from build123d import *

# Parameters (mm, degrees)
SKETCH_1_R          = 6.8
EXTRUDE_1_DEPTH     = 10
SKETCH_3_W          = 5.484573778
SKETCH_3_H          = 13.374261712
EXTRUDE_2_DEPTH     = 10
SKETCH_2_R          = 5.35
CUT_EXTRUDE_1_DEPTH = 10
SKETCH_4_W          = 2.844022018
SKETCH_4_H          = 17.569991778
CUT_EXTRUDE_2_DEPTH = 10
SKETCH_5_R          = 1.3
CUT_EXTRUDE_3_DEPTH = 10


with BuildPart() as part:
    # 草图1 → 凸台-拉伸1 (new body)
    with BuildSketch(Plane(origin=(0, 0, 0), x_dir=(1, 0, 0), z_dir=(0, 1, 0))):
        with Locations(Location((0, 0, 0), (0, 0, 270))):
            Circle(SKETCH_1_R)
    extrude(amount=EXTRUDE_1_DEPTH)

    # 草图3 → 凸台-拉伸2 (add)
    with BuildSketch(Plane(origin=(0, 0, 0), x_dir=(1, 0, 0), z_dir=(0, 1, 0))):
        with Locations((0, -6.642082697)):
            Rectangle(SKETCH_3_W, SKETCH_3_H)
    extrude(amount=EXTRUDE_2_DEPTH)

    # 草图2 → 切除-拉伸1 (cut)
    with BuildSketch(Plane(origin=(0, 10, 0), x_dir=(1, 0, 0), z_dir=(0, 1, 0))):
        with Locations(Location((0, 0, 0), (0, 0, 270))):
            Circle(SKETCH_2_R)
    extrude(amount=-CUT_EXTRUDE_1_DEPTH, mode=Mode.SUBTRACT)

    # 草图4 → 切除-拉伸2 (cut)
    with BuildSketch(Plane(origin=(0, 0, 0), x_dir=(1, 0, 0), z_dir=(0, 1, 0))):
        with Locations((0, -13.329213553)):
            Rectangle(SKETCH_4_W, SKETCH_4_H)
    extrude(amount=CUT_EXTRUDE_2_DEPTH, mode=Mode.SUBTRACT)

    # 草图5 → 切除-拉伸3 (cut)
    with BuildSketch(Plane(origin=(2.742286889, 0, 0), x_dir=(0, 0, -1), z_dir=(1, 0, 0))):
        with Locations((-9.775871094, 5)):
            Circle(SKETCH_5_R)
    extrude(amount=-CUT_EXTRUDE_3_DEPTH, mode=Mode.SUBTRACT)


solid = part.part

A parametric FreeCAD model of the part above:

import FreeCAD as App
import Part
import Sketcher

doc = App.newDocument("Part")
body = doc.addObject("PartDesign::Body", "Body")

# Sketch on XZ plane
sketch1 = body.newObject("Sketcher::SketchObject", "Sketch")
sketch1.AttachmentSupport = (doc.getObject("XZ_Plane"), [""])
sketch1.MapMode = "FlatFace"
sketch1.addGeometry(Part.Circle(App.Vector(0, 0, 0), App.Vector(0, 0, 1), 7), False)
sketch1.addConstraint([
    Sketcher.Constraint("Coincident", 0, 3, -1, 1),
    Sketcher.Constraint("Diameter", 0, 13.6),
])
pad1 = body.newObject("PartDesign::Pad", "Pad")
pad1.Profile = sketch1
pad1.Length = 10
pad1.Reversed = True

# Sketch on XZ plane
sketch2 = body.newObject("Sketcher::SketchObject", "Sketch001")
sketch2.AttachmentSupport = (doc.getObject("XZ_Plane"), [""])
sketch2.MapMode = "FlatFace"
sketch2.addGeometry([
    Part.LineSegment(App.Vector(-3, 0, 0), App.Vector(-3, 13, 0)),
    Part.LineSegment(App.Vector(-3, 13, 0), App.Vector(3, 13, 0)),
    Part.LineSegment(App.Vector(3, 13, 0), App.Vector(3, 0, 0)),
    Part.LineSegment(App.Vector(3, 0, 0), App.Vector(-3, 0, 0)),
], False)
sketch2.addConstraint([
    Sketcher.Constraint("Coincident", 0, 2, 1, 1),
    Sketcher.Constraint("Coincident", 1, 2, 2, 1),
    Sketcher.Constraint("Coincident", 2, 2, 3, 1),
    Sketcher.Constraint("Coincident", 3, 2, 0, 1),
    Sketcher.Constraint("Vertical", 0),
    Sketcher.Constraint("Horizontal", 1),
    Sketcher.Constraint("Vertical", 2),
    Sketcher.Constraint("Horizontal", 3),
    Sketcher.Constraint("DistanceY", 0, 1, 0, 2, 13.374262),
    Sketcher.Constraint("DistanceX", 1, 1, 1, 2, 5.484574),
    Sketcher.Constraint("DistanceY", 2, 2, -1, 1, 0.045048),
    Sketcher.Constraint("DistanceX", 0, 2, -1, 1, 2.742287),
])
pad2 = body.newObject("PartDesign::Pad", "Pad001")
pad2.Profile = sketch2
pad2.Length = 10
pad2.Reversed = True

# Sketch on XZ plane
sketch3 = body.newObject("Sketcher::SketchObject", "Sketch002")
sketch3.AttachmentSupport = (doc.getObject("XZ_Plane"), [""])
sketch3.MapMode = "FlatFace"
sketch3.AttachmentOffset = App.Placement(App.Vector(0, 0, -10), App.Rotation())
sketch3.addGeometry(Part.Circle(App.Vector(0, 0, 0), App.Vector(0, 0, 1), 5), False)
sketch3.addConstraint([
    Sketcher.Constraint("Coincident", 0, 3, -1, 1),
    Sketcher.Constraint("Diameter", 0, 10.7),
])
pocket1 = body.newObject("PartDesign::Pocket", "Pocket")
pocket1.Profile = sketch3
pocket1.Length = 10
pocket1.Reversed = True

# Sketch on XZ plane
sketch4 = body.newObject("Sketcher::SketchObject", "Sketch003")
sketch4.AttachmentSupport = (doc.getObject("XZ_Plane"), [""])
sketch4.MapMode = "FlatFace"
sketch4.addGeometry([
    Part.LineSegment(App.Vector(-1.4, 4.5, 0), App.Vector(-1.4, 22.1, 0)),
    Part.LineSegment(App.Vector(-1.4, 22.1, 0), App.Vector(1.4, 22.1, 0)),
    Part.LineSegment(App.Vector(1.4, 22.1, 0), App.Vector(1.4, 4.5, 0)),
    Part.LineSegment(App.Vector(1.4, 4.5, 0), App.Vector(-1.4, 4.5, 0)),
], False)
sketch4.addConstraint([
    Sketcher.Constraint("Coincident", 0, 2, 1, 1),
    Sketcher.Constraint("Coincident", 1, 2, 2, 1),
    Sketcher.Constraint("Coincident", 2, 2, 3, 1),
    Sketcher.Constraint("Coincident", 3, 2, 0, 1),
    Sketcher.Constraint("Vertical", 0),
    Sketcher.Constraint("Horizontal", 1),
    Sketcher.Constraint("Vertical", 2),
    Sketcher.Constraint("Horizontal", 3),
    Sketcher.Constraint("DistanceY", 0, 1, 0, 2, 17.569992),
    Sketcher.Constraint("DistanceX", 1, 1, 1, 2, 2.844022),
    Sketcher.Constraint("DistanceX", 0, 2, -1, 1, 1.422011),
    Sketcher.Constraint("DistanceY", -1, 1, 0, 2, 22.114209),
])
pocket2 = body.newObject("PartDesign::Pocket", "Pocket001")
pocket2.Profile = sketch4
pocket2.Length = 10

# Sketch on YZ plane
sketch5 = body.newObject("Sketcher::SketchObject", "Sketch004")
sketch5.AttachmentSupport = (doc.getObject("YZ_Plane"), [""])
sketch5.MapMode = "FlatFace"
sketch5.AttachmentOffset = App.Placement(App.Vector(0, 0, 2.742287), App.Rotation())
sketch5.addGeometry(Part.Circle(App.Vector(5, 9.8, 0), App.Vector(0, 0, 1), 1.3), False)
sketch5.addConstraint([
    Sketcher.Constraint("Diameter", 0, 2.6),
    Sketcher.Constraint("DistanceX", -1, 1, 0, 3, 5.0),
    Sketcher.Constraint("DistanceY", -1, 1, 0, 3, 9.775871),
])
pocket3 = body.newObject("PartDesign::Pocket", "Pocket002")
pocket3.Profile = sketch5
pocket3.Length = 10

doc.recompute()
